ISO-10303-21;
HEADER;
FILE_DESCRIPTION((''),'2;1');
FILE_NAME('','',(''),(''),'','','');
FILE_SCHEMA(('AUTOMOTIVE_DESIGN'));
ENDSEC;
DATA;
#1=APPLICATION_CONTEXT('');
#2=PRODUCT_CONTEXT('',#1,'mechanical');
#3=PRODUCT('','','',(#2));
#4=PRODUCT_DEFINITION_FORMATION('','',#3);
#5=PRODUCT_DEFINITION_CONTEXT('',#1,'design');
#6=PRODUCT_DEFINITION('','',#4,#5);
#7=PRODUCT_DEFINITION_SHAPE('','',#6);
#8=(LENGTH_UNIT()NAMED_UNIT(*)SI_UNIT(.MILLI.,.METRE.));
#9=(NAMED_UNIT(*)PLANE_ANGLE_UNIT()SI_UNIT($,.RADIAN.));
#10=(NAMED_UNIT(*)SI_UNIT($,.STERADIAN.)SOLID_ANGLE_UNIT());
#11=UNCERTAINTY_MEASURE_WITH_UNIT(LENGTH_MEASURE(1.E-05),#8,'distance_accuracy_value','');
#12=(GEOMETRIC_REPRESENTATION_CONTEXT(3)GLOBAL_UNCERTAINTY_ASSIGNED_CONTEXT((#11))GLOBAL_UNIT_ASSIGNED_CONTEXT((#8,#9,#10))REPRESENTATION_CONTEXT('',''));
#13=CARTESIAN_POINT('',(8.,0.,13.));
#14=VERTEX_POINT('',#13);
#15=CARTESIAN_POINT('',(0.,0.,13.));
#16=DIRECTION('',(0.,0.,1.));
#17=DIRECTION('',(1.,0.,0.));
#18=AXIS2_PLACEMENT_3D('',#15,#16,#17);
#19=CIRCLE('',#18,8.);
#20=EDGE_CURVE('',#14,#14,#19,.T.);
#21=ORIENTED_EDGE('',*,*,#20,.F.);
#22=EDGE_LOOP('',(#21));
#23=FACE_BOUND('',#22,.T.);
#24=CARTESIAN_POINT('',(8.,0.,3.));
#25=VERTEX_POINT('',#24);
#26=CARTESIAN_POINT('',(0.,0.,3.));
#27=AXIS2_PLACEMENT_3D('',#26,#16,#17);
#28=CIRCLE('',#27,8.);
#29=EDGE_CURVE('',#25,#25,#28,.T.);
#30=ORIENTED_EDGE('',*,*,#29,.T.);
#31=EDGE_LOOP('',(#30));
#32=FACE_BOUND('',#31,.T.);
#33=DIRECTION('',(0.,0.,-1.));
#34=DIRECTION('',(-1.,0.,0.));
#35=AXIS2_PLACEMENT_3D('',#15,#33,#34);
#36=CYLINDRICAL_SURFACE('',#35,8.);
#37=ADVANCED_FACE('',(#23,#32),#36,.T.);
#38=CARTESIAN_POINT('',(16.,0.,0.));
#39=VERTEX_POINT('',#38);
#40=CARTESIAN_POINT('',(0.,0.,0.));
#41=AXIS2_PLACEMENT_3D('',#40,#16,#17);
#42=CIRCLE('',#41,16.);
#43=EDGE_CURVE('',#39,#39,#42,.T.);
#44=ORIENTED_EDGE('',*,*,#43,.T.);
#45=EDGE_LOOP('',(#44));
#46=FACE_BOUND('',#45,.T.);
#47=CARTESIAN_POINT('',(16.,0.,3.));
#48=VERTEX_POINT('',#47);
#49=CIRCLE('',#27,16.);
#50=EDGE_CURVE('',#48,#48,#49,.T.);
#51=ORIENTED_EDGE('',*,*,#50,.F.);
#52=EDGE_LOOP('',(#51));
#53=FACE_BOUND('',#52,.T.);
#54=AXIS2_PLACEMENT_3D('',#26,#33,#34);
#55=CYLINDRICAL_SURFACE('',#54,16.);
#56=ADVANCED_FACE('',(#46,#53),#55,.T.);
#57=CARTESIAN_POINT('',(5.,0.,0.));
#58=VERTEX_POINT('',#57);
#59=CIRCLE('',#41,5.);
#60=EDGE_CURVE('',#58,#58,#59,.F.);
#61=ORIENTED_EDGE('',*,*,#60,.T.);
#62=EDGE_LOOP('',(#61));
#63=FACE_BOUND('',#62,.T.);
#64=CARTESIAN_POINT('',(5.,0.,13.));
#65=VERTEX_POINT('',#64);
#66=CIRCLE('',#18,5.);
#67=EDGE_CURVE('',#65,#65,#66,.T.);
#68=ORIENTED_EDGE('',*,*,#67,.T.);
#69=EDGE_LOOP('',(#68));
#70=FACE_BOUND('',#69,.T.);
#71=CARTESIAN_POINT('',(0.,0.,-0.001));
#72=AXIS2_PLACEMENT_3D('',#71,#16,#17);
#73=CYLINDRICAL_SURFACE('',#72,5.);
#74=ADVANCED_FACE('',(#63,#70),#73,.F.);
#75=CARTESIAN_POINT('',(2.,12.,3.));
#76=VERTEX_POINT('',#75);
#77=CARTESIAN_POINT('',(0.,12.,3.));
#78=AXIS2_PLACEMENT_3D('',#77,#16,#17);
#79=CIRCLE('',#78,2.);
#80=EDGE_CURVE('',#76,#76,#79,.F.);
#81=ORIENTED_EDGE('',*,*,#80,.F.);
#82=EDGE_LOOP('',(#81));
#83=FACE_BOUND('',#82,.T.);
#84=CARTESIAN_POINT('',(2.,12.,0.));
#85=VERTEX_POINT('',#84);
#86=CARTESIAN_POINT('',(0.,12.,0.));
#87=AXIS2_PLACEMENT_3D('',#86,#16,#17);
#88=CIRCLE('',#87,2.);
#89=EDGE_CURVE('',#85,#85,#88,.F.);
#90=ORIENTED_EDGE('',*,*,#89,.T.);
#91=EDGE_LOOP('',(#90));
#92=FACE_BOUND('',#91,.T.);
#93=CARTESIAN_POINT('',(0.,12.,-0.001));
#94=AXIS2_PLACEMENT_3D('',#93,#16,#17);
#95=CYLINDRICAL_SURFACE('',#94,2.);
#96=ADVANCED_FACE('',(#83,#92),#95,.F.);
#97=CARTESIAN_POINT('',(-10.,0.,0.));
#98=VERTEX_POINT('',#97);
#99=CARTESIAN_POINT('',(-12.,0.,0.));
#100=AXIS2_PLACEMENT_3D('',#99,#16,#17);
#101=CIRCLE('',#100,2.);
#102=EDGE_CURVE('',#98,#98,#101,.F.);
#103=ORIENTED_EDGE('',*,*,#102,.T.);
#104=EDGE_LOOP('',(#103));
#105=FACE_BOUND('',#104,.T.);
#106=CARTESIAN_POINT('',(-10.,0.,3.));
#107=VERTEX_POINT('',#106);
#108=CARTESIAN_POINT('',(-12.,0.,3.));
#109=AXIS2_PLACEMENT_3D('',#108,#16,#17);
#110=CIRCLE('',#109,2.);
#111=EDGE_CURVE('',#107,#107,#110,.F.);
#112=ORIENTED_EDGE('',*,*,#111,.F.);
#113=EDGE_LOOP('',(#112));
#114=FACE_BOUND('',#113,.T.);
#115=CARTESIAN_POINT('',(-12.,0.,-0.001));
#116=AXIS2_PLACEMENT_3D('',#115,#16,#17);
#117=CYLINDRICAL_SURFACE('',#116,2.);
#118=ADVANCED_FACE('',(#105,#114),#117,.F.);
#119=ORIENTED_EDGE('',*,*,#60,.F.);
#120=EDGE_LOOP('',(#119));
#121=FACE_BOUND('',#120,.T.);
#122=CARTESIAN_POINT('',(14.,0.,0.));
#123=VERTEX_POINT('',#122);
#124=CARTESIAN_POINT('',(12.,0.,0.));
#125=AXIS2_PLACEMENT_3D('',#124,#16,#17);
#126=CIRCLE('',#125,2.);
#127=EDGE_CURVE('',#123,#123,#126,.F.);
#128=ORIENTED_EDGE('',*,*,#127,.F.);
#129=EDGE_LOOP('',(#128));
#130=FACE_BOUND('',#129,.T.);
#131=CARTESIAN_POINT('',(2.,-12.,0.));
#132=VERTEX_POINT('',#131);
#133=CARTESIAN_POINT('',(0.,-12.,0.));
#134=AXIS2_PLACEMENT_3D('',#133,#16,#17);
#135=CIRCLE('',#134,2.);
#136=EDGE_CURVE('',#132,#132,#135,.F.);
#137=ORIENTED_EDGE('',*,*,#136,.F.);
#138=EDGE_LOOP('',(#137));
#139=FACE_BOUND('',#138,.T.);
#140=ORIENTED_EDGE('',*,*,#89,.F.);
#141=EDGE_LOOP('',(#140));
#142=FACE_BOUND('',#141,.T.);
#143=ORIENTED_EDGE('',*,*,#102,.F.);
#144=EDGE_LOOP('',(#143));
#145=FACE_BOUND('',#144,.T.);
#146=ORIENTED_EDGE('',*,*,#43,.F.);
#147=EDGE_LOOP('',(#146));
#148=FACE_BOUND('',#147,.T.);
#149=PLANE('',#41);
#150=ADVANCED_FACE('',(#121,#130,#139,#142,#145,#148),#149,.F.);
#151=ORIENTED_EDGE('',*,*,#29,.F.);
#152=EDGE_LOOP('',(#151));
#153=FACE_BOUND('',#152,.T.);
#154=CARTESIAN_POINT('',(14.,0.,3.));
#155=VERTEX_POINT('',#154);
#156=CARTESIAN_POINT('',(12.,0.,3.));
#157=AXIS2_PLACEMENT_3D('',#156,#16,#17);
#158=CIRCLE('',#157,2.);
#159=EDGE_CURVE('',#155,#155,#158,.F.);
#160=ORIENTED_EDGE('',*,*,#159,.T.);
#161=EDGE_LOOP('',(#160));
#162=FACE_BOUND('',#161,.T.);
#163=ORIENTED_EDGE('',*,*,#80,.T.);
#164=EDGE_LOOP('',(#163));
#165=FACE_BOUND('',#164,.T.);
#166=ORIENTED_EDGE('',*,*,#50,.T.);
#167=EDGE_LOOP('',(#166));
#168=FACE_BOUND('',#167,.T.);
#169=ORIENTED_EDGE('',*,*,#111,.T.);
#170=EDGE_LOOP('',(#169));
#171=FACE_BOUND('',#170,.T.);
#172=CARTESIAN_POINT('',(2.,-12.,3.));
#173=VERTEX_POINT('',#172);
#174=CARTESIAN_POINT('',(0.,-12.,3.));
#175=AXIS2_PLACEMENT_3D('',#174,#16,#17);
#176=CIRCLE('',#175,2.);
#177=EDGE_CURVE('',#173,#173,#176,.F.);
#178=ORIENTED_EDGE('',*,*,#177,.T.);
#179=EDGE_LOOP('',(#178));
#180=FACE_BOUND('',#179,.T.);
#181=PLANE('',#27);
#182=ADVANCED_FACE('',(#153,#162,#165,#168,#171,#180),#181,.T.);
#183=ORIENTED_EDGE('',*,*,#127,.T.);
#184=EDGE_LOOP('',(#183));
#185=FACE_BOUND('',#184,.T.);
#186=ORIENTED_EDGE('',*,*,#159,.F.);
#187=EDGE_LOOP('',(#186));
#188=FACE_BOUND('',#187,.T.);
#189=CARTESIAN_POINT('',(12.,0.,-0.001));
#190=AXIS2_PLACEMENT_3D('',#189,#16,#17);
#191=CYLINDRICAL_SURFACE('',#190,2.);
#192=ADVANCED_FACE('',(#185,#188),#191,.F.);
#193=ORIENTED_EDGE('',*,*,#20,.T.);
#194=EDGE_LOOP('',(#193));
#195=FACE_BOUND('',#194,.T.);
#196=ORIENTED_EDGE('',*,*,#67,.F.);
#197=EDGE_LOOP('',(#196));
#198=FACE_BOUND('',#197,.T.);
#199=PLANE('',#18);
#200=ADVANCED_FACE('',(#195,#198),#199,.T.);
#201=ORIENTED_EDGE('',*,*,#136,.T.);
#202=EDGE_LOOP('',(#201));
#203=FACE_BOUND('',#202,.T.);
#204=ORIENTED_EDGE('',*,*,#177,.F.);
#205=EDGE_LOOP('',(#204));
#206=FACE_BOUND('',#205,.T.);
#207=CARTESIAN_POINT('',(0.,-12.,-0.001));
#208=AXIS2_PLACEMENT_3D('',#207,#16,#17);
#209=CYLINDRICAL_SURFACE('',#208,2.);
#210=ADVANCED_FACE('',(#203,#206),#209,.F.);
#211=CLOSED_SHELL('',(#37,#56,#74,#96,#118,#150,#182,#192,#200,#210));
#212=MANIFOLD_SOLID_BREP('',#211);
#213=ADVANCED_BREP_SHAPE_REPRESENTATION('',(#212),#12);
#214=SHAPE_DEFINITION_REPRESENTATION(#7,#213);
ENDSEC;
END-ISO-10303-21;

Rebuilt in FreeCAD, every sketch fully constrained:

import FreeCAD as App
import Part
import Sketcher

V = App.Vector
Q = App.Units.Quantity

doc = App.newDocument("Part")
body = doc.addObject("PartDesign::Body", "Body")

# Sketch on XY plane
sketch1 = body.newObject("Sketcher::SketchObject", "Sketch")
sketch1.AttachmentSupport = (doc.getObject("XY_Plane"), [""])
sketch1.MapMode = "FlatFace"
sketch1.addGeometry(Part.Circle(V(0, 0, 0), V(0, 0, 1), 16), False)
sketch1.addConstraint([
    Sketcher.Constraint("Coincident", 0, 3, -1, 1),
    Sketcher.Constraint("Diameter", 0, Q("32 mm")),
])
pad1 = body.newObject("PartDesign::Pad", "Pad")
pad1.Profile = sketch1
pad1.Length = 3

# Sketch on XY plane
sketch2 = body.newObject("Sketcher::SketchObject", "Sketch001")
sketch2.AttachmentSupport = (doc.getObject("XY_Plane"), [""])
sketch2.MapMode = "FlatFace"
sketch2.AttachmentOffset = App.Placement(V(0, 0, 3), App.Rotation())
sketch2.addGeometry(Part.Circle(V(0, 0, 0), V(0, 0, 1), 8), False)
sketch2.addConstraint([
    Sketcher.Constraint("Coincident", 0, 3, -1, 1),
    Sketcher.Constraint("Diameter", 0, Q("16 mm")),
])
pad2 = body.newObject("PartDesign::Pad", "Pad001")
pad2.Profile = sketch2
pad2.Length = 10

# Sketch on XY plane
sketch3 = body.newObject("Sketcher::SketchObject", "Sketch002")
sketch3.AttachmentSupport = (doc.getObject("XY_Plane"), [""])
sketch3.MapMode = "FlatFace"
sketch3.AttachmentOffset = App.Placement(V(0, 0, 13), App.Rotation())
sketch3.addGeometry(Part.Circle(V(0, 0, 0), V(0, 0, 1), 5), False)
sketch3.addConstraint([
    Sketcher.Constraint("Coincident", 0, 3, -1, 1),
    Sketcher.Constraint("Diameter", 0, Q("10 mm")),
])
pocket1 = body.newObject("PartDesign::Pocket", "Pocket")
pocket1.Profile = sketch3
pocket1.Type = "UpToFirst"

# Sketch on XY plane
sketch4 = body.newObject("Sketcher::SketchObject", "Sketch003")
sketch4.AttachmentSupport = (doc.getObject("XY_Plane"), [""])
sketch4.MapMode = "FlatFace"
sketch4.AttachmentOffset = App.Placement(V(0, 0, 13), App.Rotation())
sketch4.addGeometry(Part.Circle(V(0, 12, 0), V(0, 0, 1), 2), False)
sketch4.addConstraint([
    Sketcher.Constraint("PointOnObject", 0, 3, -2),
    Sketcher.Constraint("Diameter", 0, Q("4 mm")),
    Sketcher.Constraint("DistanceY", -1, 1, 0, 3, Q("12 mm")),
])
pocket2 = body.newObject("PartDesign::Pocket", "Pocket001")
pocket2.Profile = sketch4
pocket2.Length = 13

# Sketch on XY plane
sketch5 = body.newObject("Sketcher::SketchObject", "Sketch004")
sketch5.AttachmentSupport = (doc.getObject("XY_Plane"), [""])
sketch5.MapMode = "FlatFace"
sketch5.AttachmentOffset = App.Placement(V(0, 0, 13), App.Rotation())
sketch5.addGeometry(Part.Circle(V(12, 0, 0), V(0, 0, 1), 2), False)
sketch5.addConstraint([
    Sketcher.Constraint("PointOnObject", 0, 3, -1),
    Sketcher.Constraint("Diameter", 0, Q("4 mm")),
    Sketcher.Constraint("DistanceX", -1, 1, 0, 3, Q("12 mm")),
])
pocket3 = body.newObject("PartDesign::Pocket", "Pocket002")
pocket3.Profile = sketch5
pocket3.Length = 13

# Sketch on XY plane
sketch6 = body.newObject("Sketcher::SketchObject", "Sketch005")
sketch6.AttachmentSupport = (doc.getObject("XY_Plane"), [""])
sketch6.MapMode = "FlatFace"
sketch6.AttachmentOffset = App.Placement(V(0, 0, 13), App.Rotation())
sketch6.addGeometry(Part.Circle(V(0, -12, 0), V(0, 0, 1), 2), False)
sketch6.addConstraint([
    Sketcher.Constraint("PointOnObject", 0, 3, -2),
    Sketcher.Constraint("Diameter", 0, Q("4 mm")),
    Sketcher.Constraint("DistanceY", 0, 3, -1, 1, Q("12 mm")),
])
pocket4 = body.newObject("PartDesign::Pocket", "Pocket003")
pocket4.Profile = sketch6
pocket4.Length = 13

# Sketch on XY plane
sketch7 = body.newObject("Sketcher::SketchObject", "Sketch006")
sketch7.AttachmentSupport = (doc.getObject("XY_Plane"), [""])
sketch7.MapMode = "FlatFace"
sketch7.AttachmentOffset = App.Placement(V(0, 0, 13), App.Rotation())
sketch7.addGeometry(Part.Circle(V(-12, 0, 0), V(0, 0, 1), 2), False)
sketch7.addConstraint([
    Sketcher.Constraint("PointOnObject", 0, 3, -1),
    Sketcher.Constraint("Diameter", 0, Q("4 mm")),
    Sketcher.Constraint("DistanceX", 0, 3, -1, 1, Q("12 mm")),
])
pocket5 = body.newObject("PartDesign::Pocket", "Pocket004")
pocket5.Profile = sketch7
pocket5.Length = 13

doc.recompute()
